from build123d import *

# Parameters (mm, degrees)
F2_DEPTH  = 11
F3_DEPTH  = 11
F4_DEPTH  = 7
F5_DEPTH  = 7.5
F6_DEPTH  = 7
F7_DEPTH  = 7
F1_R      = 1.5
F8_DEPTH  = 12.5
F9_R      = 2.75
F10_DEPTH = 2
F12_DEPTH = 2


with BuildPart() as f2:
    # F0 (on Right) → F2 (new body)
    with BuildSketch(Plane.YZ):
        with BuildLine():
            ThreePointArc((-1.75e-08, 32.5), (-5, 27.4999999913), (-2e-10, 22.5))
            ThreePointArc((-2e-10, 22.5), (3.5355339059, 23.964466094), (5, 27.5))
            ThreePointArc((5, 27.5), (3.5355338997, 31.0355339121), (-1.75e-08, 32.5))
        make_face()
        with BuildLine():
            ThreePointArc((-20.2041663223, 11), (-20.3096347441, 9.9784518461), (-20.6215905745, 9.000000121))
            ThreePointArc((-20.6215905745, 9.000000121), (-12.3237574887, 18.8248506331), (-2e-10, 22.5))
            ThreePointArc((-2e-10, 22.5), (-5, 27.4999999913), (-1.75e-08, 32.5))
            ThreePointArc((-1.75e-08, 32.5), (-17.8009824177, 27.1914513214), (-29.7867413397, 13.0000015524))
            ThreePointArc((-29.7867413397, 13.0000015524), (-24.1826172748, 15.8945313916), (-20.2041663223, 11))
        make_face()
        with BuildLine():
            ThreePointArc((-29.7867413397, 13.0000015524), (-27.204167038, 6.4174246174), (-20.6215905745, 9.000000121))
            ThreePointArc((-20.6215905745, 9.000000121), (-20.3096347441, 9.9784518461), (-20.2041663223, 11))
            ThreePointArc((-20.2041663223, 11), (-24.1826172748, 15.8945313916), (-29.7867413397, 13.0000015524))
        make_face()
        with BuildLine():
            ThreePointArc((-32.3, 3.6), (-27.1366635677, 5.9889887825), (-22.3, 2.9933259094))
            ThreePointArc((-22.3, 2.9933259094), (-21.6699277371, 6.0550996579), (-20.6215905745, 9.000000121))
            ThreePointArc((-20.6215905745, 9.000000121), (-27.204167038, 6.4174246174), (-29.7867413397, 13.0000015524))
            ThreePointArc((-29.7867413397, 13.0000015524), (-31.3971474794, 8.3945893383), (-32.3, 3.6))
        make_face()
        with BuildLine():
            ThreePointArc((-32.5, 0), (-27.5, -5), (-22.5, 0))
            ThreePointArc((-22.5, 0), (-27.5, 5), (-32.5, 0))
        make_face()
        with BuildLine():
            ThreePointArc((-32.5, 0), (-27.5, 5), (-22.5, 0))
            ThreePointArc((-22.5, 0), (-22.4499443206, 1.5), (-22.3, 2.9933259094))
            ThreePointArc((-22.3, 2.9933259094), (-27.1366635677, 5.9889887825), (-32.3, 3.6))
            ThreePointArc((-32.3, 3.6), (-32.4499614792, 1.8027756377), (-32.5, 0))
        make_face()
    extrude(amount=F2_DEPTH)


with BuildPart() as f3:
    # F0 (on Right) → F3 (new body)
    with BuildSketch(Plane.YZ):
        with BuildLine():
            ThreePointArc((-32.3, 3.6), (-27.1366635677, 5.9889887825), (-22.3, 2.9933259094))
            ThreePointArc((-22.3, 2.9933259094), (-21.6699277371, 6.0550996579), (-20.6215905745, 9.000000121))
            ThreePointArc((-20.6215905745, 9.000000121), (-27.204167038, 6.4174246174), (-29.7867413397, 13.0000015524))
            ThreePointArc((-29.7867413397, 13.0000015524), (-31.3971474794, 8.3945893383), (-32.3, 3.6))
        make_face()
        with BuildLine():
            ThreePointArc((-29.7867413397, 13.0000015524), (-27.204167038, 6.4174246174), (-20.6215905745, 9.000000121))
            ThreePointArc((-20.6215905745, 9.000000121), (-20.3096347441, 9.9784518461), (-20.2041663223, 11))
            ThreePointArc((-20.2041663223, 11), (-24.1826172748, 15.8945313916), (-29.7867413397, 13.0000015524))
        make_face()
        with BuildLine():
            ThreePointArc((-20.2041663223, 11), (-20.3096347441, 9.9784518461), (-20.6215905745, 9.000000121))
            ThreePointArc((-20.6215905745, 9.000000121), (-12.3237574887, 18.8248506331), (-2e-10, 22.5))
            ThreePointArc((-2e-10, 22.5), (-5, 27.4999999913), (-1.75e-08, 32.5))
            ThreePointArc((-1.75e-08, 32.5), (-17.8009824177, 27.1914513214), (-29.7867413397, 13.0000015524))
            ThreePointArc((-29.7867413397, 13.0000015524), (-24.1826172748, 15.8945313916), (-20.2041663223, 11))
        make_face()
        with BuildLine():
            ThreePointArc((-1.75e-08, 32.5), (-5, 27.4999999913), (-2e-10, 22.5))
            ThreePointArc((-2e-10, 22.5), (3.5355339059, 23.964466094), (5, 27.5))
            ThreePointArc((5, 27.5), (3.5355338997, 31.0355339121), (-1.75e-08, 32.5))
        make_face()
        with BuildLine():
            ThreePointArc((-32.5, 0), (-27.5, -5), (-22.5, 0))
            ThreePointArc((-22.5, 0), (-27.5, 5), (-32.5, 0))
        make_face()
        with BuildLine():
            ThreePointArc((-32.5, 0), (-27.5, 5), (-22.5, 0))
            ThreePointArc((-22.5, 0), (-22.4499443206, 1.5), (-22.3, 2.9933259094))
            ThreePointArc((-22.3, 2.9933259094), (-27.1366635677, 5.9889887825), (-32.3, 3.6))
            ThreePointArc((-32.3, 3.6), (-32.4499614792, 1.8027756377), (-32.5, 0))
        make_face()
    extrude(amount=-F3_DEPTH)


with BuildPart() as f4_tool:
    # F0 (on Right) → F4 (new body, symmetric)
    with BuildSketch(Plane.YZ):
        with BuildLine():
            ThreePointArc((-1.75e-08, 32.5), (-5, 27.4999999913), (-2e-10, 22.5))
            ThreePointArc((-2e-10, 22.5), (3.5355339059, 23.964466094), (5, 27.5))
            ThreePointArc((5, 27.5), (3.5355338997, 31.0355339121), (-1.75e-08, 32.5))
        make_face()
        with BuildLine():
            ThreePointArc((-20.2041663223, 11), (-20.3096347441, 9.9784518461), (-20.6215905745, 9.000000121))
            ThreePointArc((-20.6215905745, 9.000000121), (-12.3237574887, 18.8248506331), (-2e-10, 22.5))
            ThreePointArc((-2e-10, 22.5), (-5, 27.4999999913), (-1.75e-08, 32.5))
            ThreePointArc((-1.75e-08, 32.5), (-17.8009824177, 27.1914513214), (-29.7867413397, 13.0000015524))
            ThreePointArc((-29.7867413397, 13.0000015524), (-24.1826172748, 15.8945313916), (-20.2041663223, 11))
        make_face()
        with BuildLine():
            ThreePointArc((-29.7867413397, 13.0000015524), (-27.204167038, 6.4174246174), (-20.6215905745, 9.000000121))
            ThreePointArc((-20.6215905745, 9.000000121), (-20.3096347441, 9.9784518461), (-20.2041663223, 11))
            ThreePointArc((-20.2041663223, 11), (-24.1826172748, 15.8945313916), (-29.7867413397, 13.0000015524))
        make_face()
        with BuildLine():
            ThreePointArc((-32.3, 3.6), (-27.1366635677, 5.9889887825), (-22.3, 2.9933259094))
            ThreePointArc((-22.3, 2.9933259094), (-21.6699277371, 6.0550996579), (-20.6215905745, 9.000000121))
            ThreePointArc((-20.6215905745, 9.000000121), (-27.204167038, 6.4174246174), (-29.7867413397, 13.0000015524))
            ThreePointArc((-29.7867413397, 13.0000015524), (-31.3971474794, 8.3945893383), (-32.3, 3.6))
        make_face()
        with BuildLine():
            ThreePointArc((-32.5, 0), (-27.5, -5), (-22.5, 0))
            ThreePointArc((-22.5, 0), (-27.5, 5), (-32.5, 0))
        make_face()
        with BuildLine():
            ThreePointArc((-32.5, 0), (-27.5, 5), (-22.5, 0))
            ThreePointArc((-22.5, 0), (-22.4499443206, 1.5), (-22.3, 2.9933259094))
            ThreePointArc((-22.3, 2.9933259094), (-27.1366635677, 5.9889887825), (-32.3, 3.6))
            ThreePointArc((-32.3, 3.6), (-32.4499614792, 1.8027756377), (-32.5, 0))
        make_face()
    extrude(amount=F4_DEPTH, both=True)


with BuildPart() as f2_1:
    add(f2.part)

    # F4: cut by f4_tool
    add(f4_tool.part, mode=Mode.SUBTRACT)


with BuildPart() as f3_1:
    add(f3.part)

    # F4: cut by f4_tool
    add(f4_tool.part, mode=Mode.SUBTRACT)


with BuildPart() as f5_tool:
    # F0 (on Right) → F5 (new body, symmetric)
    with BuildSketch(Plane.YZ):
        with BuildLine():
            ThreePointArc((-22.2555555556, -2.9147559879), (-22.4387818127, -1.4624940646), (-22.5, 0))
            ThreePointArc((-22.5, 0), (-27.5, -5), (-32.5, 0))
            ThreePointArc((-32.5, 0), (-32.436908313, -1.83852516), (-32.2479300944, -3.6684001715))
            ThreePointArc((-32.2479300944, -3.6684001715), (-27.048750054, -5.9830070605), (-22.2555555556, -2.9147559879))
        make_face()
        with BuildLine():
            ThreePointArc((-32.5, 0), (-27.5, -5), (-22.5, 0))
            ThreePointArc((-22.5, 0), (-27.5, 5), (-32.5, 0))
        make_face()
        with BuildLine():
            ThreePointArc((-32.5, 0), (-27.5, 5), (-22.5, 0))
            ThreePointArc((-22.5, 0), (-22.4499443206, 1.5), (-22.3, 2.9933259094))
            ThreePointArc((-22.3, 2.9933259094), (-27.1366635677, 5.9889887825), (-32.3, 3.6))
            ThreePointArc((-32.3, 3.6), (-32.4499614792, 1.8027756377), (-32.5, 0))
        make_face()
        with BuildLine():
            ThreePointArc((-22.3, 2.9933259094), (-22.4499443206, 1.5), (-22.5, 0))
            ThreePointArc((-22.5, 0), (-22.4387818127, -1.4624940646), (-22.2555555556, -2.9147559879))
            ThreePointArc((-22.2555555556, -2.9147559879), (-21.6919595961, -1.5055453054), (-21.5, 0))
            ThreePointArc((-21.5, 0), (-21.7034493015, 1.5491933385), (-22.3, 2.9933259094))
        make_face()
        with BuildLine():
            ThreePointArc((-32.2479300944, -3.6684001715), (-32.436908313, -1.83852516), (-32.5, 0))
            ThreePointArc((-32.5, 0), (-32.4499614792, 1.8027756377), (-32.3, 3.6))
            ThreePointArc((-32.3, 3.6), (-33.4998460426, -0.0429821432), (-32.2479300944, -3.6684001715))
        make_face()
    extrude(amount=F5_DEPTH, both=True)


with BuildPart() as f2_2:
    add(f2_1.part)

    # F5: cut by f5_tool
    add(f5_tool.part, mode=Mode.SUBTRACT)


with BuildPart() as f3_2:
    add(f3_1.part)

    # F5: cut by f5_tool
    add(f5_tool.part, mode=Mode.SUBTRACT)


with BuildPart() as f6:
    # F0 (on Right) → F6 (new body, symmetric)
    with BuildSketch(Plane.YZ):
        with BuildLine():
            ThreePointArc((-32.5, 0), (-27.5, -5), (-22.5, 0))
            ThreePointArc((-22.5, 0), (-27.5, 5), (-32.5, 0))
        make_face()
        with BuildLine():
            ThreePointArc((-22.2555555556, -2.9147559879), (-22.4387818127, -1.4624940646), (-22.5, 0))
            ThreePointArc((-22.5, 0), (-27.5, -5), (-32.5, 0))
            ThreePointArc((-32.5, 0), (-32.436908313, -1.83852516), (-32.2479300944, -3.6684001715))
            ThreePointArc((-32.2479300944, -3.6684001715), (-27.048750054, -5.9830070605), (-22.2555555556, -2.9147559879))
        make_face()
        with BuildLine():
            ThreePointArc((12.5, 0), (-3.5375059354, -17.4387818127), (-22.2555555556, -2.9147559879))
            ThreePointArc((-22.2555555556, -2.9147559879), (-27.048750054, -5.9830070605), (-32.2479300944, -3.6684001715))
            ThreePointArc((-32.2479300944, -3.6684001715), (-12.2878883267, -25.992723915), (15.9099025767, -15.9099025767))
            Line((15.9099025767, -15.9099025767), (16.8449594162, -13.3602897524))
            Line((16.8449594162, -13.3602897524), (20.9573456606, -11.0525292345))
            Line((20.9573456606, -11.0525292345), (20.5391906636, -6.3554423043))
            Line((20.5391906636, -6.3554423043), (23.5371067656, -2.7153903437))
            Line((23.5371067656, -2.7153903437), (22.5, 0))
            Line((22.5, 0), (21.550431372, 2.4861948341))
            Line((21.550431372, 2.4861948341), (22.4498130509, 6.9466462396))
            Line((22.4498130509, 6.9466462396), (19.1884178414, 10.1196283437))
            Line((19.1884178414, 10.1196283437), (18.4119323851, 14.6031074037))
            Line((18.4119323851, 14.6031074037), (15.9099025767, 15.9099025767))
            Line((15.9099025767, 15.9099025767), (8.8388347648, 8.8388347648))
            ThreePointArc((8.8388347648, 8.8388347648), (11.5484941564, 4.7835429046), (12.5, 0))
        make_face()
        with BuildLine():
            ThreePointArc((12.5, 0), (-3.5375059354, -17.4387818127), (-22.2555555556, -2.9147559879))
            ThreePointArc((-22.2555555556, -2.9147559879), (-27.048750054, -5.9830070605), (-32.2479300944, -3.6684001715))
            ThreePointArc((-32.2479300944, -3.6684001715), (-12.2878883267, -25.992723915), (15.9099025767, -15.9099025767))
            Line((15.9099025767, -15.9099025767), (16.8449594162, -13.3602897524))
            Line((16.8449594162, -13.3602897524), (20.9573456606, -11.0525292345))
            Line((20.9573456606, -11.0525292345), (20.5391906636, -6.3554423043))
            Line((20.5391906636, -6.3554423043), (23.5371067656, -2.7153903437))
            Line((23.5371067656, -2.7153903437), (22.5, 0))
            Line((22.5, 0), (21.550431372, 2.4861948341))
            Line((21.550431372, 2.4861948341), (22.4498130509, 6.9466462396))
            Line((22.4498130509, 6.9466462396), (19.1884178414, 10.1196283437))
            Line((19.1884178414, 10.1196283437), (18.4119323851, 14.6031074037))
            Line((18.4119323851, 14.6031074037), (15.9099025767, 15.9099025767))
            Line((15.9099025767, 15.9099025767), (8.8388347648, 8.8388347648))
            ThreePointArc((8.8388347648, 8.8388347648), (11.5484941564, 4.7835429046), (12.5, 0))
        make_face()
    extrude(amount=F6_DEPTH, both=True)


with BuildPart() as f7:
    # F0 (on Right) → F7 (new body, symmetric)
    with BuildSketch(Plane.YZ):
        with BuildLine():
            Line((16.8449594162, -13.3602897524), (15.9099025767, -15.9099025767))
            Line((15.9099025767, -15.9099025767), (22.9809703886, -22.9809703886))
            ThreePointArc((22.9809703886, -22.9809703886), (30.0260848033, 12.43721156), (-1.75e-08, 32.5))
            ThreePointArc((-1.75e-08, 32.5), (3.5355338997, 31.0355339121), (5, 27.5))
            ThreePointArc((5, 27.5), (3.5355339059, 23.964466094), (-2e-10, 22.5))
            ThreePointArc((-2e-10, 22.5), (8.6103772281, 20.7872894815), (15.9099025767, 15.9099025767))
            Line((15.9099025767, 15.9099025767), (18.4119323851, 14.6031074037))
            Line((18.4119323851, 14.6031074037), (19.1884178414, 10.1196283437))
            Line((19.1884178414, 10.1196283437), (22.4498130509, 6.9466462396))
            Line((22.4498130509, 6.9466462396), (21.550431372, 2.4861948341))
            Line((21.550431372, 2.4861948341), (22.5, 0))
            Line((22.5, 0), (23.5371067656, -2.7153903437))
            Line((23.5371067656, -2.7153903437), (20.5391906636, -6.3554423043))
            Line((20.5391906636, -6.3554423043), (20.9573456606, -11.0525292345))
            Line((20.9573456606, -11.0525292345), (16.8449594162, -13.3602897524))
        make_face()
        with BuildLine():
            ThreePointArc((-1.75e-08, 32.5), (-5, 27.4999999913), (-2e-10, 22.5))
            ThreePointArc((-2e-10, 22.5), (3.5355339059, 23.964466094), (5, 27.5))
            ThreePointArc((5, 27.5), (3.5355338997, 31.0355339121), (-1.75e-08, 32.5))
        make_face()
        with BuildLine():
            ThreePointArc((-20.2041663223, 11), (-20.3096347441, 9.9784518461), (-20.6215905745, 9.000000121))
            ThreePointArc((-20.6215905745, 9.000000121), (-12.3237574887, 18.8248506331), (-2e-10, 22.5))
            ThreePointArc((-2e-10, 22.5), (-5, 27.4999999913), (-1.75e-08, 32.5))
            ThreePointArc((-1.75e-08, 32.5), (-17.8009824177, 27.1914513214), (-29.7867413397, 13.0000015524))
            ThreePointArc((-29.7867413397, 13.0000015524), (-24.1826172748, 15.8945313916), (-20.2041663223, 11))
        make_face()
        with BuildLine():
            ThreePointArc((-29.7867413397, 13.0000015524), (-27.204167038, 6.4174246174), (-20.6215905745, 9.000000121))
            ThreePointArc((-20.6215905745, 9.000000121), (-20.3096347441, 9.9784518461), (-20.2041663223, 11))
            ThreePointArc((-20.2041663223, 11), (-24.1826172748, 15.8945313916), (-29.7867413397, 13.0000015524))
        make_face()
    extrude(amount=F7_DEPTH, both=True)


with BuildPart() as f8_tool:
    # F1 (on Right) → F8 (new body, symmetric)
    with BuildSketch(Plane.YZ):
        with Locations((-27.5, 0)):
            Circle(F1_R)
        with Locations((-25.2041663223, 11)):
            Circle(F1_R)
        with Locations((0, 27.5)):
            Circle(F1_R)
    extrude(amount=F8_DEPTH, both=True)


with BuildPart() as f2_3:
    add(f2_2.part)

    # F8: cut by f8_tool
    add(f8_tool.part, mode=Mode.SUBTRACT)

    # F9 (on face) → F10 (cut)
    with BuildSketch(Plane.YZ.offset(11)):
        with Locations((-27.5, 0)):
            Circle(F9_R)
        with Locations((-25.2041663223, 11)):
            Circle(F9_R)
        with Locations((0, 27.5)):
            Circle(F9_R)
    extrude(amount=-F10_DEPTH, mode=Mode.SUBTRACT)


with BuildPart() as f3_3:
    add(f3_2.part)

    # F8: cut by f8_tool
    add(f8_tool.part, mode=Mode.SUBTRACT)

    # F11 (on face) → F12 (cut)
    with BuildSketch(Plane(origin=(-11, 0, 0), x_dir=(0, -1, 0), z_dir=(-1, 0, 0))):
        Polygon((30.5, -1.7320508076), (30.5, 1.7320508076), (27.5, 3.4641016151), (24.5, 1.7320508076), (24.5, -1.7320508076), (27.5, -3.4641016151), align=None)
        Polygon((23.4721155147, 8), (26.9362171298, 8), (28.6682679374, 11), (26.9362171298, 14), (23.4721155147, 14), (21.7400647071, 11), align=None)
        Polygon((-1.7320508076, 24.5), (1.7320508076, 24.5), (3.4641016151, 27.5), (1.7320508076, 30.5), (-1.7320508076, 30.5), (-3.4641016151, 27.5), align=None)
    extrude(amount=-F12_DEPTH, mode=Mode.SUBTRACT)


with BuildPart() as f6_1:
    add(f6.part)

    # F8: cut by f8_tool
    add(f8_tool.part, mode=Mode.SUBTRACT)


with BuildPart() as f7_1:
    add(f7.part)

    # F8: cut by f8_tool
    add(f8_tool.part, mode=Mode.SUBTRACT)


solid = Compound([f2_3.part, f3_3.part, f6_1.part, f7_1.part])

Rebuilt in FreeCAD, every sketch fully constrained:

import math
import FreeCAD as App
import Part
import Sketcher
from FreeCAD import Vector
Q = App.Units.Quantity


def add_polygon(sketch, points):
    """Adds a closed chain of lines whose ends are joined by coincident constraints."""
    first, n = sketch.GeometryCount, len(points)
    for a, b in zip(points, points[1:] + points[:1]):
        sketch.addGeometry(Part.LineSegment(App.Vector(*a, 0), App.Vector(*b, 0)), False)
    for i in range(n):
        sketch.addConstraint(Sketcher.Constraint("Coincident", first + i, 2, first + (i + 1) % n, 1))

doc = App.newDocument("Part")
body = doc.addObject("PartDesign::Body", "Body")

sketch1 = body.newObject("Sketcher::SketchObject", "Sketch")
sketch1.AttachmentSupport = (doc.getObject("YZ_Plane"), [""])
sketch1.MapMode = "FlatFace"
sketch1.addGeometry([
    Part.ArcOfCircle(Part.Circle(Vector(0, 27.5, 0), Vector(0, 0, 1), 5), math.radians(-90), math.radians(0)),
    Part.ArcOfCircle(Part.Circle(Vector(0, 27.5, 0), Vector(0, 0, 1), 5), math.radians(0), math.radians(90)),
    Part.ArcOfCircle(Part.Circle(Vector(0, 0, 0), Vector(0, 0, 1), 32.5), math.radians(90), math.radians(156)),
    Part.ArcOfCircle(Part.Circle(Vector(0, 0, 0), Vector(0, 0, 1), 32.5), math.radians(156.42), math.radians(173.64)),
    Part.ArcOfCircle(Part.Circle(Vector(0, 0, 0), Vector(0, 0, 1), 32.5), math.radians(173.64), math.radians(180)),
    Part.ArcOfCircle(Part.Circle(Vector(-27.5, 0, 0), Vector(0, 0, 1), 5), math.radians(180), math.radians(360)),
    Part.ArcOfCircle(Part.Circle(Vector(0, 0, 0), Vector(0, 0, 1), 22.5), math.radians(172.35), math.radians(180)),
    Part.ArcOfCircle(Part.Circle(Vector(0, 0, 0), Vector(0, 0, 1), 22.5), math.radians(156.42), math.radians(172.35)),
    Part.ArcOfCircle(Part.Circle(Vector(0, 0, 0), Vector(0, 0, 1), 22.5), math.radians(90), math.radians(156)),
], False)
sketch1.addConstraint([
    Sketcher.Constraint("Tangent", 0, 2, 1, 1),
    Sketcher.Constraint("Tangent", 1, 2, 2, 1),
    Sketcher.Constraint("Tangent", 2, 2, 3, 1),
    Sketcher.Constraint("Tangent", 3, 2, 4, 1),
    Sketcher.Constraint("Tangent", 4, 2, 5, 1),
    Sketcher.Constraint("Tangent", 5, 2, 6, 2),
    Sketcher.Constraint("Tangent", 6, 1, 7, 2),
    Sketcher.Constraint("Tangent", 7, 1, 8, 2),
    Sketcher.Constraint("Tangent", 8, 1, 0, 1),
    Sketcher.Constraint("Coincident", 2, 3, -1, 1),
    Sketcher.Constraint("Coincident", 4, 3, -1, 1),
    Sketcher.Constraint("Coincident", 6, 3, -1, 1),
    Sketcher.Constraint("Coincident", 8, 3, -1, 1),
    Sketcher.Constraint("Equal", 0, 1),
    Sketcher.Constraint("PointOnObject", 0, 3, -2),
    Sketcher.Constraint("PointOnObject", 5, 3, -1),
    Sketcher.Constraint("Horizontal", 1, 3, 0, 2),
    Sketcher.Constraint("Radius", 0, Q("5 mm")),
    Sketcher.Constraint("Radius", 2, Q("32.5 mm")),
    Sketcher.Constraint("DistanceY", -1, 1, 2, 2, Q("13.000002 mm")),
    Sketcher.Constraint("DistanceY", -1, 1, 7, 1, Q("9 mm")),
    Sketcher.Constraint("DistanceX", 3, 2, 6, 1, Q("10 mm")),
    Sketcher.Constraint("DistanceX", 3, 2, -1, 1, Q("32.3 mm")),
])
pad1 = body.newObject("PartDesign::Pad", "Pad")
pad1.Profile = sketch1
pad1.Length = 11
body2 = doc.addObject("PartDesign::Body", "Body001")

sketch2 = body2.newObject("Sketcher::SketchObject", "Sketch001")
sketch2.AttachmentSupport = (doc.getObject("YZ_Plane001"), [""])
sketch2.MapMode = "FlatFace"
sketch2.addGeometry([
    Part.ArcOfCircle(Part.Circle(Vector(0, 0, 0), Vector(0, 0, 1), 22.5), math.radians(156.42), math.radians(172.35)),
    Part.ArcOfCircle(Part.Circle(Vector(0, 0, 0), Vector(0, 0, 1), 22.5), math.radians(90), math.radians(156)),
    Part.ArcOfCircle(Part.Circle(Vector(0, 27.5, 0), Vector(0, 0, 1), 5), math.radians(-90), math.radians(0)),
    Part.ArcOfCircle(Part.Circle(Vector(0, 27.5, 0), Vector(0, 0, 1), 5), math.radians(0), math.radians(90)),
    Part.ArcOfCircle(Part.Circle(Vector(0, 0, 0), Vector(0, 0, 1), 32.5), math.radians(90), math.radians(156)),
    Part.ArcOfCircle(Part.Circle(Vector(0, 0, 0), Vector(0, 0, 1), 32.5), math.radians(156.42), math.radians(173.64)),
    Part.ArcOfCircle(Part.Circle(Vector(0, 0, 0), Vector(0, 0, 1), 32.5), math.radians(173.64), math.radians(180)),
    Part.ArcOfCircle(Part.Circle(Vector(-27.5, 0, 0), Vector(0, 0, 1), 5), math.radians(180), math.radians(360)),
    Part.ArcOfCircle(Part.Circle(Vector(0, 0, 0), Vector(0, 0, 1), 22.5), math.radians(172.35), math.radians(180)),
], False)
sketch2.addConstraint([
    Sketcher.Constraint("Tangent", 0, 1, 1, 2),
    Sketcher.Constraint("Tangent", 1, 1, 2, 1),
    Sketcher.Constraint("Tangent", 2, 2, 3, 1),
    Sketcher.Constraint("Tangent", 3, 2, 4, 1),
    Sketcher.Constraint("Tangent", 4, 2, 5, 1),
    Sketcher.Constraint("Tangent", 5, 2, 6, 1),
    Sketcher.Constraint("Tangent", 6, 2, 7, 1),
    Sketcher.Constraint("Tangent", 7, 2, 8, 2),
    Sketcher.Constraint("Tangent", 8, 1, 0, 2),
    Sketcher.Constraint("Coincident", 0, 3, -1, 1),
    Sketcher.Constraint("Coincident", 4, 3, -1, 1),
    Sketcher.Constraint("Coincident", 6, 3, -1, 1),
    Sketcher.Constraint("Equal", 0, 1),
    Sketcher.Constraint("Equal", 2, 3),
    Sketcher.Constraint("Equal", 3, 7),
    Sketcher.Constraint("PointOnObject", 2, 3, -2),
    Sketcher.Constraint("PointOnObject", 7, 3, -1),
    Sketcher.Constraint("Horizontal", 3, 3, 2, 2),
    Sketcher.Constraint("Radius", 2, Q("5 mm")),
    Sketcher.Constraint("Radius", 0, Q("22.5 mm")),
    Sketcher.Constraint("DistanceY", -1, 1, 0, 1, Q("9 mm")),
    Sketcher.Constraint("DistanceY", -1, 1, 4, 2, Q("13.000002 mm")),
    Sketcher.Constraint("DistanceX", 5, 2, 8, 1, Q("10 mm")),
    Sketcher.Constraint("DistanceX", 5, 2, -1, 1, Q("32.3 mm")),
])
pad2 = body2.newObject("PartDesign::Pad", "Pad001")
pad2.Profile = sketch2
pad2.Length = 11
pad2.Reversed = True
body3 = doc.addObject("PartDesign::Body", "Body002")

sketch3 = body3.newObject("Sketcher::SketchObject", "Sketch002")
sketch3.AttachmentSupport = (doc.getObject("YZ_Plane002"), [""])
sketch3.MapMode = "FlatFace"
sketch3.addGeometry([
    Part.ArcOfCircle(Part.Circle(Vector(0, 27.5, 0), Vector(0, 0, 1), 5), math.radians(-90), math.radians(0)),
    Part.ArcOfCircle(Part.Circle(Vector(0, 27.5, 0), Vector(0, 0, 1), 5), math.radians(0), math.radians(90)),
    Part.ArcOfCircle(Part.Circle(Vector(0, 0, 0), Vector(0, 0, 1), 32.5), math.radians(90), math.radians(156)),
    Part.ArcOfCircle(Part.Circle(Vector(0, 0, 0), Vector(0, 0, 1), 32.5), math.radians(156.42), math.radians(173.64)),
    Part.ArcOfCircle(Part.Circle(Vector(0, 0, 0), Vector(0, 0, 1), 32.5), math.radians(173.64), math.radians(180)),
    Part.ArcOfCircle(Part.Circle(Vector(-27.5, 0, 0), Vector(0, 0, 1), 5), math.radians(180), math.radians(360)),
    Part.ArcOfCircle(Part.Circle(Vector(0, 0, 0), Vector(0, 0, 1), 22.5), math.radians(172.35), math.radians(180)),
    Part.ArcOfCircle(Part.Circle(Vector(0, 0, 0), Vector(0, 0, 1), 22.5), math.radians(156.42), math.radians(172.35)),
    Part.ArcOfCircle(Part.Circle(Vector(0, 0, 0), Vector(0, 0, 1), 22.5), math.radians(90), math.radians(156)),
], False)
sketch3.addConstraint([
    Sketcher.Constraint("Tangent", 0, 2, 1, 1),
    Sketcher.Constraint("Tangent", 1, 2, 2, 1),
    Sketcher.Constraint("Tangent", 2, 2, 3, 1),
    Sketcher.Constraint("Tangent", 3, 2, 4, 1),
    Sketcher.Constraint("Tangent", 4, 2, 5, 1),
    Sketcher.Constraint("Tangent", 5, 2, 6, 2),
    Sketcher.Constraint("Tangent", 6, 1, 7, 2),
    Sketcher.Constraint("Tangent", 7, 1, 8, 2),
    Sketcher.Constraint("Tangent", 8, 1, 0, 1),
    Sketcher.Constraint("Coincident", 2, 3, -1, 1),
    Sketcher.Constraint("Coincident", 4, 3, -1, 1),
    Sketcher.Constraint("Coincident", 6, 3, -1, 1),
    Sketcher.Constraint("Coincident", 8, 3, -1, 1),
    Sketcher.Constraint("Equal", 0, 1),
    Sketcher.Constraint("PointOnObject", 0, 3, -2),
    Sketcher.Constraint("PointOnObject", 5, 3, -1),
    Sketcher.Constraint("Horizontal", 1, 3, 0, 2),
    Sketcher.Constraint("Radius", 0, Q("5 mm")),
    Sketcher.Constraint("Radius", 2, Q("32.5 mm")),
    Sketcher.Constraint("DistanceY", -1, 1, 2, 2, Q("13.000002 mm")),
    Sketcher.Constraint("DistanceY", -1, 1, 7, 1, Q("9 mm")),
    Sketcher.Constraint("DistanceX", 3, 2, 6, 1, Q("10 mm")),
    Sketcher.Constraint("DistanceX", 3, 2, -1, 1, Q("32.3 mm")),
])
pad3 = body3.newObject("PartDesign::Pad", "Pad002")
pad3.Profile = sketch3
pad3.Length = 14
pad3.Midplane = True
doc.recompute()

body4 = doc.addObject("PartDesign::Body", "Body003")
body4.BaseFeature = body3
boolean = body.newObject("PartDesign::Boolean", "Boolean")
boolean.Type = "Cut"
boolean.addObjects([body4])
doc.recompute()

boolean2 = body2.newObject("PartDesign::Boolean", "Boolean001")
boolean2.Type = "Cut"
boolean2.addObjects([body3])
body5 = doc.addObject("PartDesign::Body", "Body004")

sketch4 = body5.newObject("Sketcher::SketchObject", "Sketch003")
sketch4.AttachmentSupport = (doc.getObject("YZ_Plane004"), [""])
sketch4.MapMode = "FlatFace"
sketch4.addGeometry([
    Part.ArcOfCircle(Part.Circle(Vector(-27.5, 0, 0), Vector(0, 0, 1), 6), math.radians(30), math.radians(143)),
    Part.ArcOfCircle(Part.Circle(Vector(-27.5, 0, 0), Vector(0, 0, 1), 6), math.radians(143), math.radians(331)),
    Part.ArcOfCircle(Part.Circle(Vector(-27.5, 0, 0), Vector(0, 0, 1), 6), math.radians(-29), math.radians(0)),
    Part.ArcOfCircle(Part.Circle(Vector(-27.5, 0, 0), Vector(0, 0, 1), 6), math.radians(0), math.radians(30)),
], False)
sketch4.addConstraint([
    Sketcher.Constraint("Tangent", 0, 2, 1, 1),
    Sketcher.Constraint("Tangent", 1, 2, 2, 1),
    Sketcher.Constraint("Tangent", 2, 2, 3, 1),
    Sketcher.Constraint("Tangent", 3, 2, 0, 1),
    Sketcher.Constraint("Equal", 0, 1),
    Sketcher.Constraint("PointOnObject", 0, 3, -1),
    Sketcher.Constraint("PointOnObject", 2, 2, -1),
    Sketcher.Constraint("Radius", 0, Q("6 mm")),
    Sketcher.Constraint("DistanceX", 0, 3, -1, 1, Q("27.5 mm")),
    Sketcher.Constraint("DistanceX", 0, 2, -1, 1, Q("32.3 mm")),
    Sketcher.Constraint("DistanceX", 3, 2, -1, 1, Q("22.3 mm")),
    Sketcher.Constraint("DistanceY", 1, 2, 3, 2, Q("5.908082 mm")),
])
pad4 = body5.newObject("PartDesign::Pad", "Pad003")
pad4.Profile = sketch4
pad4.Length = 15
pad4.Midplane = True
doc.recompute()

body6 = doc.addObject("PartDesign::Body", "Body005")
body6.BaseFeature = body5
boolean3 = body.newObject("PartDesign::Boolean", "Boolean002")
boolean3.Type = "Cut"
boolean3.addObjects([body6])
doc.recompute()

boolean4 = body2.newObject("PartDesign::Boolean", "Boolean003")
boolean4.Type = "Cut"
boolean4.addObjects([body5])
body7 = doc.addObject("PartDesign::Body", "Body006")

sketch5 = body7.newObject("Sketcher::SketchObject", "Sketch004")
sketch5.AttachmentSupport = (doc.getObject("YZ_Plane006"), [""])
sketch5.MapMode = "FlatFace"
sketch5.addGeometry([
    Part.ArcOfCircle(Part.Circle(Vector(-5, 0, 0), Vector(0, 0, 1), 17.5), math.radians(180), math.radians(189.59)),
    Part.ArcOfCircle(Part.Circle(Vector(-27.5, 0, 0), Vector(0, 0, 1), 5), math.radians(0), math.radians(180)),
    Part.ArcOfCircle(Part.Circle(Vector(-5.7, 0, 0), Vector(0, 0, 1), 26.8), math.radians(180), math.radians(187.86)),
    Part.ArcOfCircle(Part.Circle(Vector(-5.7, 0, 0), Vector(0, 0, 1), 26.8), math.radians(-172), math.radians(-36)),
    Part.LineSegment(Vector(15.9, -15.9, 0), Vector(16.8, -13.4, 0)),
    Part.LineSegment(Vector(16.8, -13.4, 0), Vector(21, -11.1, 0)),
    Part.LineSegment(Vector(21, -11.1, 0), Vector(20.5, -6.4, 0)),
    Part.LineSegment(Vector(20.5, -6.4, 0), Vector(23.5, -2.7, 0)),
    Part.LineSegment(Vector(23.5, -2.7, 0), Vector(22.5, 0, 0)),
    Part.LineSegment(Vector(22.5, 0, 0), Vector(21.6, 2.5, 0)),
    Part.LineSegment(Vector(21.6, 2.5, 0), Vector(22.4, 6.9, 0)),
    Part.LineSegment(Vector(22.4, 6.9, 0), Vector(19.2, 10.1, 0)),
    Part.LineSegment(Vector(19.2, 10.1, 0), Vector(18.4, 14.6, 0)),
    Part.LineSegment(Vector(18.4, 14.6, 0), Vector(15.9, 15.9, 0)),
    Part.LineSegment(Vector(15.9, 15.9, 0), Vector(8.8, 8.8, 0)),
    Part.ArcOfCircle(Part.Circle(Vector(0, 0, 0), Vector(0, 0, 1), 12.5), math.radians(0), math.radians(45)),
    Part.ArcOfCircle(Part.Circle(Vector(-5, 0, 0), Vector(0, 0, 1), 17.5), math.radians(-170), math.radians(0)),
], False)
sketch5.addConstraint([
    Sketcher.Constraint("Tangent", 0, 1, 1, 1),
    Sketcher.Constraint("Tangent", 1, 2, 2, 1),
    Sketcher.Constraint("Tangent", 2, 2, 3, 1),
    Sketcher.Constraint("Coincident", 3, 2, 4, 1),
    Sketcher.Constraint("Coincident", 4, 2, 5, 1),
    Sketcher.Constraint("Coincident", 5, 2, 6, 1),
    Sketcher.Constraint("Coincident", 6, 2, 7, 1),
    Sketcher.Constraint("Coincident", 7, 2, 8, 1),
    Sketcher.Constraint("Coincident", 8, 2, 9, 1),
    Sketcher.Constraint("Coincident", 9, 2, 10, 1),
    Sketcher.Constraint("Coincident", 10, 2, 11, 1),
    Sketcher.Constraint("Coincident", 11, 2, 12, 1),
    Sketcher.Constraint("Coincident", 12, 2, 13, 1),
    Sketcher.Constraint("Coincident", 13, 2, 14, 1),
    Sketcher.Constraint("Coincident", 14, 2, 15, 2),
    Sketcher.Constraint("Tangent", 15, 1, 16, 2),
    Sketcher.Constraint("Tangent", 16, 1, 0, 2),
    Sketcher.Constraint("Coincident", 15, 3, -1, 1),
    Sketcher.Constraint("Equal", 2, 3),
    Sketcher.Constraint("Equal", 0, 16),
    Sketcher.Constraint("Symmetric", 0, 1, 8, 2, -1, 1),
    Sketcher.Constraint("Symmetric", 3, 2, 13, 2, -1),
    Sketcher.Constraint("PointOnObject", 0, 3, -1),
    Sketcher.Constraint("PointOnObject", 1, 3, -1),
    Sketcher.Constraint("PointOnObject", 2, 3, -1),
    Sketcher.Constraint("Parallel", 8, 9),
    Sketcher.Constraint("Equal", 5, 6),
    Sketcher.Constraint("Equal", 6, 7),
    Sketcher.Constraint("Equal", 10, 11),
    Sketcher.Constraint("Equal", 11, 12),
    Sketcher.Constraint("Radius", 1, Q("5 mm")),
    Sketcher.Constraint("Radius", 0, Q("17.5 mm")),
    Sketcher.Constraint("Radius", 15, Q("12.5 mm")),
    Sketcher.Constraint("Angle", 14, Q("-135 deg")),
    Sketcher.Constraint("Distance", 14, Q("10 mm")),
    Sketcher.Constraint("Radius", 2, Q("26.819344 mm")),
    Sketcher.Constraint("DistanceY", 2, 2, -1, 1, Q("3.6684 mm")),
    Sketcher.Constraint("DistanceY", 4, 2, 7, 2, Q("10.644899 mm")),
    Sketcher.Constraint("DistanceX", 12, 2, 9, 2, Q("3.138499 mm")),
    Sketcher.Constraint("DistanceX", 16, 1, 2, 3, Q("16.5749 mm")),
    Sketcher.Constraint("Distance", 4, Q("2.715669 mm")),
    Sketcher.Constraint("Distance", 9, Q("2.661362 mm")),
    Sketcher.Constraint("Distance", 10, Q("4.550221 mm")),
    Sketcher.Constraint("Distance", 13, Q("2.822741 mm")),
    Sketcher.Constraint("DistanceX", -1, 1, 4, 2, Q("16.844959 mm")),
    Sketcher.Constraint("DistanceY", 5, 2, -1, 1, Q("11.052529 mm")),
    Sketcher.Constraint("DistanceX", -1, 1, 6, 2, Q("20.539191 mm")),
    Sketcher.Constraint("DistanceX", -1, 1, 9, 2, Q("21.550431 mm")),
    Sketcher.Constraint("DistanceY", -1, 1, 11, 2, Q("10.119628 mm")),
])
pad5 = body7.newObject("PartDesign::Pad", "Pad004")
pad5.Profile = sketch5
pad5.Length = 14
pad5.Midplane = True
body8 = doc.addObject("PartDesign::Body", "Body007")

sketch6 = body8.newObject("Sketcher::SketchObject", "Sketch005")
sketch6.AttachmentSupport = (doc.getObject("YZ_Plane007"), [""])
sketch6.MapMode = "FlatFace"
sketch6.addGeometry([
    Part.LineSegment(Vector(16.8, -13.4, 0), Vector(15.9, -15.9, 0)),
    Part.LineSegment(Vector(15.9, -15.9, 0), Vector(23, -23, 0)),
    Part.ArcOfCircle(Part.Circle(Vector(0, 0, 0), Vector(0, 0, 1), 32.5), math.radians(-45), math.radians(156)),
    Part.ArcOfCircle(Part.Circle(Vector(-25.2, 11, 0), Vector(0, 0, 1), 5), math.radians(156), math.radians(336)),
    Part.ArcOfCircle(Part.Circle(Vector(0, 0, 0), Vector(0, 0, 1), 22.5), math.radians(90), math.radians(156)),
    Part.ArcOfCircle(Part.Circle(Vector(0, 0, 0), Vector(0, 0, 1), 22.5), math.radians(45), math.radians(90)),
    Part.LineSegment(Vector(15.9, 15.9, 0), Vector(18.4, 14.6, 0)),
    Part.LineSegment(Vector(18.4, 14.6, 0), Vector(19.2, 10.1, 0)),
    Part.LineSegment(Vector(19.2, 10.1, 0), Vector(22.4, 6.9, 0)),
    Part.LineSegment(Vector(22.4, 6.9, 0), Vector(21.6, 2.5, 0)),
    Part.LineSegment(Vector(21.6, 2.5, 0), Vector(22.5, 0, 0)),
    Part.LineSegment(Vector(22.5, 0, 0), Vector(23.5, -2.7, 0)),
    Part.LineSegment(Vector(23.5, -2.7, 0), Vector(20.5, -6.4, 0)),
    Part.LineSegment(Vector(20.5, -6.4, 0), Vector(21, -11.1, 0)),
    Part.LineSegment(Vector(21, -11.1, 0), Vector(16.8, -13.4, 0)),
], False)
sketch6.addConstraint([
    Sketcher.Constraint("Coincident", 0, 2, 1, 1),
    Sketcher.Constraint("Coincident", 1, 2, 2, 1),
    Sketcher.Constraint("Tangent", 2, 2, 3, 1),
    Sketcher.Constraint("Tangent", 3, 2, 4, 2),
    Sketcher.Constraint("Tangent", 4, 1, 5, 2),
    Sketcher.Constraint("Coincident", 5, 1, 6, 1),
    Sketcher.Constraint("Coincident", 6, 2, 7, 1),
    Sketcher.Constraint("Coincident", 7, 2, 8, 1),
    Sketcher.Constraint("Coincident", 8, 2, 9, 1),
    Sketcher.Constraint("Coincident", 9, 2, 10, 1),
    Sketcher.Constraint("Coincident", 10, 2, 11, 1),
    Sketcher.Constraint("Coincident", 11, 2, 12, 1),
    Sketcher.Constraint("Coincident", 12, 2, 13, 1),
    Sketcher.Constraint("Coincident", 13, 2, 14, 1),
    Sketcher.Constraint("Coincident", 14, 2, 0, 1),
    Sketcher.Constraint("Coincident", 2, 3, -1, 1),
    Sketcher.Constraint("Coincident", 4, 3, -1, 1),
    Sketcher.Constraint("Equal", 4, 5),
    Sketcher.Constraint("Symmetric", 0, 2, 5, 1, -1),
    Sketcher.Constraint("PointOnObject", 4, 1, -2),
    Sketcher.Constraint("PointOnObject", 10, 2, -1),
    Sketcher.Constraint("Parallel", 10, 11),
    Sketcher.Constraint("Equal", 7, 8),
    Sketcher.Constraint("Equal", 8, 9),
    Sketcher.Constraint("Equal", 12, 13),
    Sketcher.Constraint("Equal", 13, 14),
    Sketcher.Constraint("Radius", 3, Q("5 mm")),
    Sketcher.Constraint("Radius", 2, Q("32.5 mm")),
    Sketcher.Constraint("Angle", 1, Q("-45 deg")),
    Sketcher.Constraint("DistanceY", -1, 1, 3, 3, Q("11 mm")),
    Sketcher.Constraint("DistanceX", -1, 1, 10, 2, Q("22.5 mm")),
    Sketcher.Constraint("DistanceX", 6, 2, 9, 2, Q("3.138499 mm")),
    Sketcher.Constraint("DistanceY", 14, 2, 11, 2, Q("10.644899 mm")),
    Sketcher.Constraint("Distance", 0, Q("2.715669 mm")),
    Sketcher.Constraint("Distance", 6, Q("2.822741 mm")),
    Sketcher.Constraint("Distance", 7, Q("4.550221 mm")),
    Sketcher.Constraint("Distance", 10, Q("2.661362 mm")),
    Sketcher.Constraint("DistanceX", -1, 1, 1, 2, Q("22.98097 mm")),
    Sketcher.Constraint("DistanceY", -1, 1, 7, 2, Q("10.119628 mm")),
    Sketcher.Constraint("DistanceX", -1, 1, 9, 2, Q("21.550431 mm")),
    Sketcher.Constraint("DistanceY", 11, 2, -1, 1, Q("2.71539 mm")),
    Sketcher.Constraint("DistanceX", -1, 1, 12, 2, Q("20.539191 mm")),
    Sketcher.Constraint("DistanceY", 13, 2, -1, 1, Q("11.052529 mm")),
])
pad6 = body8.newObject("PartDesign::Pad", "Pad005")
pad6.Profile = sketch6
pad6.Length = 14
pad6.Midplane = True
body9 = doc.addObject("PartDesign::Body", "Body008")
body9.AllowCompound = True

sketch7 = body9.newObject("Sketcher::SketchObject", "Sketch006")
sketch7.AttachmentSupport = (doc.getObject("YZ_Plane008"), [""])
sketch7.MapMode = "FlatFace"
sketch7.addGeometry([
    Part.Circle(Vector(-27.5, 0, 0), Vector(0, 0, 1), 1.5),
    Part.Circle(Vector(-25.2, 11, 0), Vector(0, 0, 1), 1.5),
    Part.Circle(Vector(0, 27.5, 0), Vector(0, 0, 1), 1.5),
], False)
sketch7.addConstraint([
    Sketcher.Constraint("Equal", 0, 1),
    Sketcher.Constraint("Equal", 1, 2),
    Sketcher.Constraint("PointOnObject", 0, 3, -1),
    Sketcher.Constraint("PointOnObject", 2, 3, -2),
    Sketcher.Constraint("Diameter", 0, Q("3 mm")),
    Sketcher.Constraint("DistanceY", -1, 1, 1, 3, Q("11 mm")),
    Sketcher.Constraint("DistanceX", 0, 3, -1, 1, Q("27.5 mm")),
    Sketcher.Constraint("DistanceY", -1, 1, 2, 3, Q("27.5 mm")),
    Sketcher.Constraint("DistanceX", 1, 3, -1, 1, Q("25.204166 mm")),
])
pad7 = body9.newObject("PartDesign::Pad", "Pad006")
pad7.Profile = sketch7
pad7.Length = 25
pad7.Midplane = True
doc.recompute()

body10 = doc.addObject("PartDesign::Body", "Body009")
body10.BaseFeature = body9
boolean5 = body.newObject("PartDesign::Boolean", "Boolean004")
boolean5.Type = "Cut"
boolean5.addObjects([body10])
doc.recompute()

sketch8 = body.newObject("Sketcher::SketchObject", "Sketch007")
sketch8.AttachmentSupport = (doc.getObject("YZ_Plane"), [""])
sketch8.MapMode = "FlatFace"
sketch8.AttachmentOffset = App.Placement(Vector(0, 0, 11), App.Rotation())
sketch8.addGeometry([
    Part.Circle(Vector(-27.5, 0, 0), Vector(0, 0, 1), 2.8),
    Part.Circle(Vector(-25.2, 11, 0), Vector(0, 0, 1), 2.8),
    Part.Circle(Vector(0, 27.5, 0), Vector(0, 0, 1), 2.8),
], False)
sketch8.addConstraint([
    Sketcher.Constraint("Equal", 0, 1),
    Sketcher.Constraint("Equal", 1, 2),
    Sketcher.Constraint("PointOnObject", 0, 3, -1),
    Sketcher.Constraint("PointOnObject", 2, 3, -2),
    Sketcher.Constraint("Diameter", 0, Q("5.5 mm")),
    Sketcher.Constraint("DistanceY", -1, 1, 1, 3, Q("11 mm")),
    Sketcher.Constraint("DistanceX", 0, 3, -1, 1, Q("27.5 mm")),
    Sketcher.Constraint("DistanceY", -1, 1, 2, 3, Q("27.5 mm")),
    Sketcher.Constraint("DistanceX", 1, 3, -1, 1, Q("25.204166 mm")),
])
pocket1 = body.newObject("PartDesign::Pocket", "Pocket")
pocket1.Profile = sketch8
pocket1.Length = 2
doc.recompute()

body11 = doc.addObject("PartDesign::Body", "Body010")
body11.BaseFeature = body9
boolean6 = body2.newObject("PartDesign::Boolean", "Boolean005")
boolean6.Type = "Cut"
boolean6.addObjects([body11])
doc.recompute()

sketch9 = body2.newObject("Sketcher::SketchObject", "Sketch008")
sketch9.AttachmentSupport = (doc.getObject("YZ_Plane001"), [""])
sketch9.MapMode = "FlatFace"
sketch9.AttachmentOffset = App.Placement(Vector(0, 0, -11), App.Rotation())
add_polygon(sketch9, [(-30.5, -1.7), (-30.5, 1.7), (-27.5, 3.5), (-24.5, 1.7), (-24.5, -1.7), (-27.5, -3.5)])
add_polygon(sketch9, [(-23.5, 8), (-26.9, 8), (-28.7, 11), (-26.9, 14), (-23.5, 14), (-21.7, 11)])
add_polygon(sketch9, [(1.7, 24.5), (-1.7, 24.5), (-3.5, 27.5), (-1.7, 30.5), (1.7, 30.5), (3.5, 27.5)])
sketch9.addConstraint([
    Sketcher.Constraint("Vertical", 0),
    Sketcher.Constraint("Vertical", 3),
    Sketcher.Constraint("Horizontal", 6),
    Sketcher.Constraint("Horizontal", 9),
    Sketcher.Constraint("Horizontal", 12),
    Sketcher.Constraint("Horizontal", 15),
    Sketcher.Constraint("Symmetric", 13, 2, 16, 2, -2),
    Sketcher.Constraint("Symmetric", 1, 2, 4, 2, -1),
    Sketcher.Constraint("Parallel", 1, 4),
    Sketcher.Constraint("Parallel", 2, 5),
    Sketcher.Constraint("Perpendicular", 4, 7),
    Sketcher.Constraint("Perpendicular", 5, 8),
    Sketcher.Constraint("Parallel", 7, 10),
    Sketcher.Constraint("Parallel", 8, 11),
    Sketcher.Constraint("Parallel", 10, 13),
    Sketcher.Constraint("Parallel", 11, 14),
    Sketcher.Constraint("Parallel", 13, 16),
    Sketcher.Constraint("Parallel", 14, 17),
    Sketcher.Constraint("Horizontal", 0, 2, 2, 2),
    Sketcher.Constraint("Horizontal", 3, 2, 5, 2),
    Sketcher.Constraint("Horizontal", 7, 2, 10, 2),
    Sketcher.Constraint("Vertical", 6, 2, 8, 2),
    Sketcher.Constraint("Vertical", 12, 2, 14, 2),
    Sketcher.Constraint("Equal", 9, 12),
    Sketcher.Constraint("Equal", 15, 0),
    Sketcher.Constraint("Equal", 5, 7),
    Sketcher.Constraint("Equal", 11, 13),
    Sketcher.Constraint("Angle", 1, Q("30 deg")),
    Sketcher.Constraint("DistanceY", -1, 1, 6, 2, Q("8 mm")),
    Sketcher.Constraint("DistanceY", -1, 1, 7, 2, Q("11 mm")),
    Sketcher.Constraint("DistanceX", 0, 2, -1, 1, Q("30.5 mm")),
    Sketcher.Constraint("DistanceY", -1, 1, 12, 2, Q("24.5 mm")),
    Sketcher.Constraint("DistanceX", 6, 2, 6, 1, Q("3.464102 mm")),
    Sketcher.Constraint("DistanceX", 6, 2, -1, 1, Q("26.936217 mm")),
])
pocket2 = body2.newObject("PartDesign::Pocket", "Pocket001")
pocket2.Profile = sketch9
pocket2.Length = 2
pocket2.Reversed = True
doc.recompute()

body12 = doc.addObject("PartDesign::Body", "Body011")
body12.BaseFeature = body9
boolean7 = body7.newObject("PartDesign::Boolean", "Boolean006")
boolean7.Type = "Cut"
boolean7.addObjects([body12])
doc.recompute()

boolean8 = body8.newObject("PartDesign::Boolean", "Boolean007")
boolean8.Type = "Cut"
boolean8.addObjects([body9])

doc.recompute()
